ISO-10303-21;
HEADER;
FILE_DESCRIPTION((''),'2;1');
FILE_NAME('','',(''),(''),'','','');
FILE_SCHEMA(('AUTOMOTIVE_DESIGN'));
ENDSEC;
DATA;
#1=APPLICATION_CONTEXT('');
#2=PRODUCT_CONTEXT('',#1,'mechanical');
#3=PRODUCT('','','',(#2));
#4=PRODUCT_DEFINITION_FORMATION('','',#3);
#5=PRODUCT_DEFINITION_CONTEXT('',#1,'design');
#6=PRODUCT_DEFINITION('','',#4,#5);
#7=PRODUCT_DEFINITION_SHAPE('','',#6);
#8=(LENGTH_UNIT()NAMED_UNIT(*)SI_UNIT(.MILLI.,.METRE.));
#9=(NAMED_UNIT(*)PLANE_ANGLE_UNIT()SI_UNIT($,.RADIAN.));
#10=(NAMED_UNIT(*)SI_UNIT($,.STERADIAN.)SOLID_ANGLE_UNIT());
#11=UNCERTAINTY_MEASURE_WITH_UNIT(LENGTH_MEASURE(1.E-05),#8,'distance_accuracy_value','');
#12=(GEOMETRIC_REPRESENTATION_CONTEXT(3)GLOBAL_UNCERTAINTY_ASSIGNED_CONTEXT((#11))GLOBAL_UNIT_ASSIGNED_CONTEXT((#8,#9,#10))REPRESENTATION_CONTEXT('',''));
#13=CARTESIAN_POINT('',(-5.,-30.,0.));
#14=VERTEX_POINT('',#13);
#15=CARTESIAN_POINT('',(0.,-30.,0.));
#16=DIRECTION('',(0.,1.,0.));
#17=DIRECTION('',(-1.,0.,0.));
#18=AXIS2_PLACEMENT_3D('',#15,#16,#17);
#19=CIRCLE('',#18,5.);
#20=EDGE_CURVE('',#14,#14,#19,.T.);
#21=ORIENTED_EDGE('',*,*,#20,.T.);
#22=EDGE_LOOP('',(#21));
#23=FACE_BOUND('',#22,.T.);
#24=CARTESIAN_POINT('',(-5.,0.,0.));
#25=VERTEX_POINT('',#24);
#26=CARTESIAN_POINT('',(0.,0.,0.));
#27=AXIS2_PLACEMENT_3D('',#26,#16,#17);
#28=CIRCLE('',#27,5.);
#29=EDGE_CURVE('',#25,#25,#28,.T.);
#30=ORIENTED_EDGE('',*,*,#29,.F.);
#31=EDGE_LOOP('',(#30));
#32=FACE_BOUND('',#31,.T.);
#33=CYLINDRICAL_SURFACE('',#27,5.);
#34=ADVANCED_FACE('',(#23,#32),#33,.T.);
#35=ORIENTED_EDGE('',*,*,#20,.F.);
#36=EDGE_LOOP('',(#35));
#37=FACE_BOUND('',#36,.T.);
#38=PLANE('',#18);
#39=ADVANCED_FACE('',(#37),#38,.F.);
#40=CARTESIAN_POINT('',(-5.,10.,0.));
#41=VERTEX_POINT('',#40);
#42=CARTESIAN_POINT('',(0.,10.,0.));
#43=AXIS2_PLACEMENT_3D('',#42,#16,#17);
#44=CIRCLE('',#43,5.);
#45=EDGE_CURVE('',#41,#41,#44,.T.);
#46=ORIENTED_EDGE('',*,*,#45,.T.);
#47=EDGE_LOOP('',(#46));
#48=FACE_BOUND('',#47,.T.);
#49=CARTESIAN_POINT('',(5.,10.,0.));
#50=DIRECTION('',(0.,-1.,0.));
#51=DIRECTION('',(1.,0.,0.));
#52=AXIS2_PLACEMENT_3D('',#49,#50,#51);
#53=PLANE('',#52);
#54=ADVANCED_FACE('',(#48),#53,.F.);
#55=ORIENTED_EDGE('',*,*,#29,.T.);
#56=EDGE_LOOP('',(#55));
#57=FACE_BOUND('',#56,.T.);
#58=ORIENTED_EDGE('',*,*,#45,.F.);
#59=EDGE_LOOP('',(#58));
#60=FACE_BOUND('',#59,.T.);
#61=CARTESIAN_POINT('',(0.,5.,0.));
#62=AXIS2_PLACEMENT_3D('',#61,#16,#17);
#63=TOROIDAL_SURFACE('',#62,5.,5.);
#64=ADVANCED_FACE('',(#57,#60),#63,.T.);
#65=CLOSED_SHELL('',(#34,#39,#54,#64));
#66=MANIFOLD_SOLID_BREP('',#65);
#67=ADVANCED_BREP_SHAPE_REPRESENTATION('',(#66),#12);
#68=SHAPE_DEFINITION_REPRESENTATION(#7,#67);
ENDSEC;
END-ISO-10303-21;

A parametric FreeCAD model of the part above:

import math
import FreeCAD as App
import Part
import Sketcher
Q = App.Units.Quantity

doc = App.newDocument("Part")
body = doc.addObject("PartDesign::Body", "Body")

# Sketch on XY plane
sketch1 = body.newObject("Sketcher::SketchObject", "Sketch")
sketch1.AttachmentSupport = (doc.getObject("XY_Plane"), [""])
sketch1.MapMode = "FlatFace"
sketch1.addGeometry([
    Part.LineSegment(App.Vector(5, 10, 0), App.Vector(0, 10, 0)),  # 0
    Part.LineSegment(App.Vector(0, 10, 0), App.Vector(0, -30, 0)),  # 1
    Part.LineSegment(App.Vector(0, -30, 0), App.Vector(5, -30, 0)),  # 2
    Part.LineSegment(App.Vector(5, -30, 0), App.Vector(5, 0, 0)),  # 3
    Part.ArcOfCircle(Part.Circle(App.Vector(5, 5, 0), App.Vector(0, 0, 1), 5), math.radians(-90), math.radians(90)),  # 4
], False)
sketch1.addConstraint([
    Sketcher.Constraint("Coincident", 0, 2, 1, 1),
    Sketcher.Constraint("Coincident", 1, 2, 2, 1),
    Sketcher.Constraint("Coincident", 2, 2, 3, 1),
    Sketcher.Constraint("Coincident", 3, 2, 4, 1),
    Sketcher.Constraint("Tangent", 4, 2, 0, 1),
    Sketcher.Constraint("Horizontal", 0),
    Sketcher.Constraint("Vertical", 1),
    Sketcher.Constraint("Horizontal", 2),
    Sketcher.Constraint("Vertical", 3),
    Sketcher.Constraint("PointOnObject", 0, 2, -2),
    Sketcher.Constraint("PointOnObject", 3, 2, -1),
    Sketcher.Constraint("Vertical", 4, 3, 2, 2),
    Sketcher.Constraint("Radius", 4, Q("5 mm")),
    Sketcher.Constraint("DistanceX", 0, 2, 0, 1, Q("5 mm")),
    Sketcher.Constraint("DistanceY", 1, 2, 1, 1, Q("40 mm")),
])
revolution = body.newObject("PartDesign::Revolution", "Revolution")
revolution.Profile = sketch1
revolution.ReferenceAxis = (sketch1, ["V_Axis"])
revolution.Angle = 360

doc.recompute()
